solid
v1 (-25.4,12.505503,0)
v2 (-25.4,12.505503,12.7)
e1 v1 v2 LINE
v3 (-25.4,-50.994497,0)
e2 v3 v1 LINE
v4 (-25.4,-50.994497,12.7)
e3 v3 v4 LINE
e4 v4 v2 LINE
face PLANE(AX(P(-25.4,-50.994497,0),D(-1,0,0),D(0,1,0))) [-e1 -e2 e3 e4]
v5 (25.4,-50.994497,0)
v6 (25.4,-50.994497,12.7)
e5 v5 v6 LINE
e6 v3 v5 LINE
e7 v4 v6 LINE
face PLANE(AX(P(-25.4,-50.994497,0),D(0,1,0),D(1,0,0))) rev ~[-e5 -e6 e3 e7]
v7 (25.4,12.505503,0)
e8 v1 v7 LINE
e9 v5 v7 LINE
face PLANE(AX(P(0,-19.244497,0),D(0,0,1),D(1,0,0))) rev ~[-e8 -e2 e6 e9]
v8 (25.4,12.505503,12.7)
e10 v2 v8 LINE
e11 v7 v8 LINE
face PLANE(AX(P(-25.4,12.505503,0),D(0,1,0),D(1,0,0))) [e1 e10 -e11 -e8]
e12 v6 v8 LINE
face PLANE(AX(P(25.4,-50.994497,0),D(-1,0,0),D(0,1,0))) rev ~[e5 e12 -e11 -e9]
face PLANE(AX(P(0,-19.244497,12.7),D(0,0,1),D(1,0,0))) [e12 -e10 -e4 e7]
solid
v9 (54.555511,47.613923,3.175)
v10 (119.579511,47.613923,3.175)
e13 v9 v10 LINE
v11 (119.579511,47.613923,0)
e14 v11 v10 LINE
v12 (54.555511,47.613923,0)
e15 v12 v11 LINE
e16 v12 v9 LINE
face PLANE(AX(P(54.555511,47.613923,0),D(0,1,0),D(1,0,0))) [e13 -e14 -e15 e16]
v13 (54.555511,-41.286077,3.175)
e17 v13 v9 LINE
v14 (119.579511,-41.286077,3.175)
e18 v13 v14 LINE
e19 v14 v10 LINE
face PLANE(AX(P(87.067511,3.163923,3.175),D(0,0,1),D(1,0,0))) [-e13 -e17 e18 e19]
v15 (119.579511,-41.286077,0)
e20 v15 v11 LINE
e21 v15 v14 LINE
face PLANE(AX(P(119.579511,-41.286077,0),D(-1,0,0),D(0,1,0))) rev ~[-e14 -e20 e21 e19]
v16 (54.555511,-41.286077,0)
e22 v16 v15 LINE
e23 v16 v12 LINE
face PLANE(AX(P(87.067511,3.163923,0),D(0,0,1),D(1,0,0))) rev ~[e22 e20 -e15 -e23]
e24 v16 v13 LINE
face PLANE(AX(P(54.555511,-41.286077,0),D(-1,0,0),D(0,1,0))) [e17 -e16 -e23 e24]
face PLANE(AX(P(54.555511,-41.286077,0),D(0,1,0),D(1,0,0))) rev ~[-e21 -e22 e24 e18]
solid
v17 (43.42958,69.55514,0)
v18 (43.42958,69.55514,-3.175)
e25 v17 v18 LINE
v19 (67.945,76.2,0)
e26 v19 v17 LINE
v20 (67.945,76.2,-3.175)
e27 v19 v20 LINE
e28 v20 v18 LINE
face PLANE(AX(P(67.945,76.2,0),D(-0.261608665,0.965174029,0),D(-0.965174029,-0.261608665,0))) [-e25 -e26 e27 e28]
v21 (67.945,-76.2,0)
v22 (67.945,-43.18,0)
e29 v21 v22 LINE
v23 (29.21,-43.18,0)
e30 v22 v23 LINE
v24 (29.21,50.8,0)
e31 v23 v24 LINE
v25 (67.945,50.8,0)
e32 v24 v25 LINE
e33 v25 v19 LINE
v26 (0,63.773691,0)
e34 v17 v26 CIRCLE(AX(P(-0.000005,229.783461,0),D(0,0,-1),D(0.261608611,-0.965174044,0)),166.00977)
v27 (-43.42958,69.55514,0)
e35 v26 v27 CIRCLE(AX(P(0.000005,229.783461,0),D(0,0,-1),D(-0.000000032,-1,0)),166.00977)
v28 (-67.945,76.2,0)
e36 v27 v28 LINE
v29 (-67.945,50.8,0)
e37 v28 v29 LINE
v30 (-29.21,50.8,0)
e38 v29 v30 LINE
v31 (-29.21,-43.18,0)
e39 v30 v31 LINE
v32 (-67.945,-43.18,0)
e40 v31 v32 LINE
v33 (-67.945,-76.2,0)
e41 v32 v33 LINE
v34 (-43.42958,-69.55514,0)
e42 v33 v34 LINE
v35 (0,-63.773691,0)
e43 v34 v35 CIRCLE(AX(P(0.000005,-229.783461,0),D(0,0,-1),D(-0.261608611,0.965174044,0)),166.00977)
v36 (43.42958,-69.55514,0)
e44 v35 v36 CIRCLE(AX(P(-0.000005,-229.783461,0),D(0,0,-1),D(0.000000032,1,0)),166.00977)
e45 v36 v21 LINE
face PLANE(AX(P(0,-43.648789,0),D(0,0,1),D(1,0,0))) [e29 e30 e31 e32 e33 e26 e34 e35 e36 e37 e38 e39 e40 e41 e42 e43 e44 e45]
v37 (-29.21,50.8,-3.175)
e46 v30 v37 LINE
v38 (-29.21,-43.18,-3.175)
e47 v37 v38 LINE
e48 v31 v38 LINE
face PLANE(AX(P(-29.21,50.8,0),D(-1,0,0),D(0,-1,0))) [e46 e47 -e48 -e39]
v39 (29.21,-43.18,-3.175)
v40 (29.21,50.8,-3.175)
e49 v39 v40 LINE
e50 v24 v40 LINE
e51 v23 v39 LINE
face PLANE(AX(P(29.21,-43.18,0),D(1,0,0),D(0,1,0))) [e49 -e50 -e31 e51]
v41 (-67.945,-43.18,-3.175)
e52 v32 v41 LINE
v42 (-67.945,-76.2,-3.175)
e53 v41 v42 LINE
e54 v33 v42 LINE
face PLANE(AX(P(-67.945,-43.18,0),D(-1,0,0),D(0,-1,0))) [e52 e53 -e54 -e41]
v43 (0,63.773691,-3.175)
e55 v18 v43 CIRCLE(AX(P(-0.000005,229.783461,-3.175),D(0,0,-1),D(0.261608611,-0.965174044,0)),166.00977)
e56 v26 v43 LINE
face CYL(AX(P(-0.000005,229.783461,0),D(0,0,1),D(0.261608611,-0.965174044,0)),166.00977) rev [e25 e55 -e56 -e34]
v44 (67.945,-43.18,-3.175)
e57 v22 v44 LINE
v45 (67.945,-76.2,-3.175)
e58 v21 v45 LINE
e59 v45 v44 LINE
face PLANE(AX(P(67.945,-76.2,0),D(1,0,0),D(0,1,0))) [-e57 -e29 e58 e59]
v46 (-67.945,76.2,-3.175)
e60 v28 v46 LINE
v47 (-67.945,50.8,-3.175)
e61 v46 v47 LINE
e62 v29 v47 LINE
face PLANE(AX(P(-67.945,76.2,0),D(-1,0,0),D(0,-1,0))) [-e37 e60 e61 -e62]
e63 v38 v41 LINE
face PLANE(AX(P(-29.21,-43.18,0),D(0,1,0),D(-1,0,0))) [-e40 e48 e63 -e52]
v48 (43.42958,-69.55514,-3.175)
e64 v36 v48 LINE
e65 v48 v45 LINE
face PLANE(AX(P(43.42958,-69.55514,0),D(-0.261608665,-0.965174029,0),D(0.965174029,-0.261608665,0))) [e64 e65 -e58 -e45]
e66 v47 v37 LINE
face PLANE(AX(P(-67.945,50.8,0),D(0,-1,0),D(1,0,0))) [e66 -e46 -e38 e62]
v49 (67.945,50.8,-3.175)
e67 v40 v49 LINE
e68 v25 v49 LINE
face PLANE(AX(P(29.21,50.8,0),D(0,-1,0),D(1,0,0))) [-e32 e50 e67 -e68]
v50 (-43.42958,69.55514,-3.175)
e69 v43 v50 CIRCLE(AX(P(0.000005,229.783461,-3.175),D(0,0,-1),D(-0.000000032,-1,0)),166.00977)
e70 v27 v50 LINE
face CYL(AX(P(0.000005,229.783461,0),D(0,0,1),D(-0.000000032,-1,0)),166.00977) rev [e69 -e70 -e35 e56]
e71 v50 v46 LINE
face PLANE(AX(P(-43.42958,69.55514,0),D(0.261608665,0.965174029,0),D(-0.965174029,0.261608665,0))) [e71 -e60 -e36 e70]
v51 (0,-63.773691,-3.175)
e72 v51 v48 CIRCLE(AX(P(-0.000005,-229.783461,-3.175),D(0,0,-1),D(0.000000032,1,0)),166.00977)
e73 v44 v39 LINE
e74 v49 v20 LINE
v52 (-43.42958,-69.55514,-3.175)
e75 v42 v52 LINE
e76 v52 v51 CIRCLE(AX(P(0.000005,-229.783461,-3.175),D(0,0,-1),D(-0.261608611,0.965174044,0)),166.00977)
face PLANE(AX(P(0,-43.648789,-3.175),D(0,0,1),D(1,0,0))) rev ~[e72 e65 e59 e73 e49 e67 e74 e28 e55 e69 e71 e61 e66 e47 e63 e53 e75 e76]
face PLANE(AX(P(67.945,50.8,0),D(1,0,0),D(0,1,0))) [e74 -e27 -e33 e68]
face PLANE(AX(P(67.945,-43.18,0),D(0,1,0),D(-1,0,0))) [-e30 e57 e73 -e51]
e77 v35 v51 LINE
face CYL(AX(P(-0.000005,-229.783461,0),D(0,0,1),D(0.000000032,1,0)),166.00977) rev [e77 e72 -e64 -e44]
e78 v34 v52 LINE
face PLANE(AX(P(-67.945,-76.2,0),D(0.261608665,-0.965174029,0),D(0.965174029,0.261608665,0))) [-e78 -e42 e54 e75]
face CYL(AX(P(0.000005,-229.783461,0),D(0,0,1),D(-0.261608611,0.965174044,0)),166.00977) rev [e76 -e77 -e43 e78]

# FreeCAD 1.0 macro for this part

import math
import FreeCAD as App
import Part
import Sketcher

V = App.Vector
Q = App.Units.Quantity


def add_polygon(sketch, points):
    """Adds a closed chain of lines whose ends are joined by coincident constraints."""
    first, n = sketch.GeometryCount, len(points)
    for a, b in zip(points, points[1:] + points[:1]):
        sketch.addGeometry(Part.LineSegment(App.Vector(*a, 0), App.Vector(*b, 0)), False)
    for i in range(n):
        sketch.addConstraint(Sketcher.Constraint("Coincident", first + i, 2, first + (i + 1) % n, 1))

doc = App.newDocument("Part")
params = doc.addObject("Spreadsheet::Sheet", "Params")
for row, (alias, value) in enumerate([
    ("sketch1_height", "1 in"),
    ("sketch1_length", "1 in"),
    ("sketch1_height2", "1.3 in"),
    ("sketch1_height3", "3.7 in"),
    ("sketch1_width", "1.525 in"),
    ("pad1_length", "0.125 in"),
    ("sketch2_width", "2 in"),
    ("sketch2_height", "2.5 in"),
    ("pad2_length", "0.5 in"),
    ("sketch3_height", "3.5 in"),
    ("sketch3_width", "2.56 in"),
    ("pad3_length", "0.125 in"),
], start=1):
    params.set(f"A{row}", alias)
    params.set(f"B{row}", "=" + value)
    params.setAlias(f"B{row}", alias)

body = doc.addObject("PartDesign::Body", "Body")

# Sketch on XY plane
sketch1 = body.newObject("Sketcher::SketchObject", "Sketch")
sketch1.AttachmentSupport = (doc.getObject("XY_Plane"), [""])
sketch1.MapMode = "FlatFace"
sketch1.addGeometry(Part.LineSegment(V(-29.21, -43.18, 0), V(-67.945, -43.18, 0)), False)
sketch1.addGeometry(Part.LineSegment(V(-67.945, -43.18, 0), V(-67.945, -76.2, 0)), False)
sketch1.addGeometry(Part.LineSegment(V(-67.945, -76.2, 0), V(-43.42958, -69.55514, 0)), False)
sketch1.addGeometry(Part.ArcOfCircle(Part.Circle(V(0.000005, -229.783461, 0), V(0, 0, 1), 166.00977), math.radians(90.000002), math.radians(105.165533)), False)
sketch1.addGeometry(Part.ArcOfCircle(Part.Circle(V(-0.000005, -229.783461, 0), V(0, 0, 1), 166.00977), math.radians(74.834467), math.radians(89.999998)), False)
sketch1.addGeometry(Part.LineSegment(V(43.42958, -69.55514, 0), V(67.945, -76.2, 0)), False)
sketch1.addGeometry(Part.LineSegment(V(67.945, -76.2, 0), V(67.945, -43.18, 0)), False)
sketch1.addGeometry(Part.LineSegment(V(67.945, -43.18, 0), V(29.21, -43.18, 0)), False)
sketch1.addGeometry(Part.LineSegment(V(29.21, -43.18, 0), V(29.21, 50.8, 0)), False)
sketch1.addGeometry(Part.LineSegment(V(29.21, 50.8, 0), V(67.945, 50.8, 0)), False)
sketch1.addGeometry(Part.LineSegment(V(67.945, 50.8, 0), V(67.945, 76.2, 0)), False)
sketch1.addGeometry(Part.LineSegment(V(67.945, 76.2, 0), V(43.42958, 69.55514, 0)), False)
sketch1.addGeometry(Part.ArcOfCircle(Part.Circle(V(-0.000005, 229.783461, 0), V(0, 0, 1), 166.00977), math.radians(-89.999998), math.radians(-74.834467)), False)
sketch1.addGeometry(Part.ArcOfCircle(Part.Circle(V(0.000005, 229.783461, 0), V(0, 0, 1), 166.00977), math.radians(-105.165533), math.radians(-90.000002)), False)
sketch1.addGeometry(Part.LineSegment(V(-43.42958, 69.55514, 0), V(-67.945, 76.2, 0)), False)
sketch1.addGeometry(Part.LineSegment(V(-67.945, 76.2, 0), V(-67.945, 50.8, 0)), False)
sketch1.addGeometry(Part.LineSegment(V(-67.945, 50.8, 0), V(-29.21, 50.8, 0)), False)
sketch1.addGeometry(Part.LineSegment(V(-29.21, 50.8, 0), V(-29.21, -43.18, 0)), False)
sketch1.addConstraint(Sketcher.Constraint("Coincident", 0, 2, 1, 1))
sketch1.addConstraint(Sketcher.Constraint("Coincident", 1, 2, 2, 1))
sketch1.addConstraint(Sketcher.Constraint("Tangent", 2, 2, 3, 2))
sketch1.addConstraint(Sketcher.Constraint("Tangent", 3, 1, 4, 2))
sketch1.addConstraint(Sketcher.Constraint("Tangent", 4, 1, 5, 1))
sketch1.addConstraint(Sketcher.Constraint("Coincident", 5, 2, 6, 1))
sketch1.addConstraint(Sketcher.Constraint("Coincident", 6, 2, 7, 1))
sketch1.addConstraint(Sketcher.Constraint("Coincident", 7, 2, 8, 1))
sketch1.addConstraint(Sketcher.Constraint("Coincident", 8, 2, 9, 1))
sketch1.addConstraint(Sketcher.Constraint("Coincident", 9, 2, 10, 1))
sketch1.addConstraint(Sketcher.Constraint("Coincident", 10, 2, 11, 1))
sketch1.addConstraint(Sketcher.Constraint("Tangent", 11, 2, 12, 2))
sketch1.addConstraint(Sketcher.Constraint("Tangent", 12, 1, 13, 2))
sketch1.addConstraint(Sketcher.Constraint("Tangent", 13, 1, 14, 1))
sketch1.addConstraint(Sketcher.Constraint("Coincident", 14, 2, 15, 1))
sketch1.addConstraint(Sketcher.Constraint("Coincident", 15, 2, 16, 1))
sketch1.addConstraint(Sketcher.Constraint("Coincident", 16, 2, 17, 1))
sketch1.addConstraint(Sketcher.Constraint("Coincident", 17, 2, 0, 1))
sketch1.addConstraint(Sketcher.Constraint("Horizontal", 0))
sketch1.addConstraint(Sketcher.Constraint("Vertical", 1))
sketch1.addConstraint(Sketcher.Constraint("Vertical", 6))
sketch1.addConstraint(Sketcher.Constraint("Horizontal", 7))
sketch1.addConstraint(Sketcher.Constraint("Vertical", 8))
sketch1.addConstraint(Sketcher.Constraint("Horizontal", 9))
sketch1.addConstraint(Sketcher.Constraint("Vertical", 10))
sketch1.addConstraint(Sketcher.Constraint("Vertical", 15))
sketch1.addConstraint(Sketcher.Constraint("Horizontal", 16))
sketch1.addConstraint(Sketcher.Constraint("Vertical", 17))
sketch1.addConstraint(Sketcher.Constraint("Equal", 3, 4))
sketch1.addConstraint(Sketcher.Constraint("Equal", 4, 12))
sketch1.addConstraint(Sketcher.Constraint("Equal", 12, 13))
sketch1.addConstraint(Sketcher.Constraint("Symmetric", 3, 3, 12, 3, -1, 1))
sketch1.addConstraint(Sketcher.Constraint("Symmetric", 1, 2, 10, 2, -1, 1))
sketch1.addConstraint(Sketcher.Constraint("Symmetric", 5, 2, 14, 2, -1, 1))
sketch1.addConstraint(Sketcher.Constraint("Symmetric", 2, 2, 4, 1, -2))
sketch1.addConstraint(Sketcher.Constraint("Symmetric", 0, 2, 6, 2, -2))
sketch1.addConstraint(Sketcher.Constraint("Symmetric", 8, 2, 16, 2, -2))
sketch1.addConstraint(Sketcher.Constraint("PointOnObject", 3, 1, -2))
sketch1.addConstraint(Sketcher.Constraint("PointOnObject", 12, 1, -2))
sketch1.addConstraint(Sketcher.Constraint("DistanceY", 10, 1, 10, 2, Q("1 in")))
sketch1.addConstraint(Sketcher.Constraint("Distance", 2, Q("1 in")))
sketch1.addConstraint(Sketcher.Constraint("DistanceY", 1, 2, 1, 1, Q("1.3 in")))
sketch1.addConstraint(Sketcher.Constraint("DistanceY", 8, 1, 8, 2, Q("3.7 in")))
sketch1.addConstraint(Sketcher.Constraint("DistanceX", 16, 2, 8, 2, Q("2.3 in")))
sketch1.addConstraint(Sketcher.Constraint("DistanceX", 0, 2, 0, 1, Q("1.525 in")))
sketch1.addConstraint(Sketcher.Constraint("Radius", 3, 166.00977))
sketch1.setExpression("Constraints[39]", "Params.sketch1_height")
sketch1.setExpression("Constraints[40]", "Params.sketch1_length")
sketch1.setExpression("Constraints[41]", "Params.sketch1_height2")
sketch1.setExpression("Constraints[42]", "Params.sketch1_height3")
sketch1.setExpression("Constraints[44]", "Params.sketch1_width")
pad1 = body.newObject("PartDesign::Pad", "Pad")
pad1.Profile = sketch1
pad1.setExpression("Length", "Params.pad1_length")
pad1.Reversed = True
body2 = doc.addObject("PartDesign::Body", "Body001")

# Sketch on XY plane
sketch2 = body2.newObject("Sketcher::SketchObject", "Sketch001")
sketch2.AttachmentSupport = (doc.getObject("XY_Plane001"), [""])
sketch2.MapMode = "FlatFace"
add_polygon(sketch2, [(-25.4, 12.505503), (-25.4, -50.994497), (25.4, -50.994497), (25.4, 12.505503)])  # lines 0-3
sketch2.addConstraint(Sketcher.Constraint("Vertical", 0))
sketch2.addConstraint(Sketcher.Constraint("Horizontal", 1))
sketch2.addConstraint(Sketcher.Constraint("Vertical", 2))
sketch2.addConstraint(Sketcher.Constraint("Horizontal", 3))
sketch2.addConstraint(Sketcher.Constraint("DistanceX", 1, 1, 1, 2, Q("2 in")))
sketch2.addConstraint(Sketcher.Constraint("DistanceY", 0, 2, 0, 1, Q("2.5 in")))
sketch2.addConstraint(Sketcher.Constraint("DistanceX", 0, 2, -1, 1, Q("1 in")))
sketch2.addConstraint(Sketcher.Constraint("DistanceY", 0, 2, -1, 1, 50.994497))
sketch2.setExpression("Constraints[8]", "Params.sketch2_width")
sketch2.setExpression("Constraints[9]", "Params.sketch2_height")
pad2 = body2.newObject("PartDesign::Pad", "Pad001")
pad2.Profile = sketch2
pad2.setExpression("Length", "Params.pad2_length")
body3 = doc.addObject("PartDesign::Body", "Body002")

# Sketch on XY plane
sketch3 = body3.newObject("Sketcher::SketchObject", "Sketch002")
sketch3.AttachmentSupport = (doc.getObject("XY_Plane002"), [""])
sketch3.MapMode = "FlatFace"
add_polygon(sketch3, [(54.555511, 47.613923), (54.555511, -41.286077), (119.579511, -41.286077), (119.579511, 47.613923)])  # lines 0-3
sketch3.addConstraint(Sketcher.Constraint("Vertical", 0))
sketch3.addConstraint(Sketcher.Constraint("Horizontal", 1))
sketch3.addConstraint(Sketcher.Constraint("Vertical", 2))
sketch3.addConstraint(Sketcher.Constraint("Horizontal", 3))
sketch3.addConstraint(Sketcher.Constraint("DistanceY", 0, 2, 0, 1, Q("3.5 in")))
sketch3.addConstraint(Sketcher.Constraint("DistanceX", 1, 1, 1, 2, Q("2.56 in")))
sketch3.addConstraint(Sketcher.Constraint("DistanceX", -1, 1, 0, 2, 54.555511))
sketch3.addConstraint(Sketcher.Constraint("DistanceY", 0, 2, -1, 1, 41.286077))
sketch3.setExpression("Constraints[8]", "Params.sketch3_height")
sketch3.setExpression("Constraints[9]", "Params.sketch3_width")
pad3 = body3.newObject("PartDesign::Pad", "Pad002")
pad3.Profile = sketch3
pad3.setExpression("Length", "Params.pad3_length")

doc.recompute()
